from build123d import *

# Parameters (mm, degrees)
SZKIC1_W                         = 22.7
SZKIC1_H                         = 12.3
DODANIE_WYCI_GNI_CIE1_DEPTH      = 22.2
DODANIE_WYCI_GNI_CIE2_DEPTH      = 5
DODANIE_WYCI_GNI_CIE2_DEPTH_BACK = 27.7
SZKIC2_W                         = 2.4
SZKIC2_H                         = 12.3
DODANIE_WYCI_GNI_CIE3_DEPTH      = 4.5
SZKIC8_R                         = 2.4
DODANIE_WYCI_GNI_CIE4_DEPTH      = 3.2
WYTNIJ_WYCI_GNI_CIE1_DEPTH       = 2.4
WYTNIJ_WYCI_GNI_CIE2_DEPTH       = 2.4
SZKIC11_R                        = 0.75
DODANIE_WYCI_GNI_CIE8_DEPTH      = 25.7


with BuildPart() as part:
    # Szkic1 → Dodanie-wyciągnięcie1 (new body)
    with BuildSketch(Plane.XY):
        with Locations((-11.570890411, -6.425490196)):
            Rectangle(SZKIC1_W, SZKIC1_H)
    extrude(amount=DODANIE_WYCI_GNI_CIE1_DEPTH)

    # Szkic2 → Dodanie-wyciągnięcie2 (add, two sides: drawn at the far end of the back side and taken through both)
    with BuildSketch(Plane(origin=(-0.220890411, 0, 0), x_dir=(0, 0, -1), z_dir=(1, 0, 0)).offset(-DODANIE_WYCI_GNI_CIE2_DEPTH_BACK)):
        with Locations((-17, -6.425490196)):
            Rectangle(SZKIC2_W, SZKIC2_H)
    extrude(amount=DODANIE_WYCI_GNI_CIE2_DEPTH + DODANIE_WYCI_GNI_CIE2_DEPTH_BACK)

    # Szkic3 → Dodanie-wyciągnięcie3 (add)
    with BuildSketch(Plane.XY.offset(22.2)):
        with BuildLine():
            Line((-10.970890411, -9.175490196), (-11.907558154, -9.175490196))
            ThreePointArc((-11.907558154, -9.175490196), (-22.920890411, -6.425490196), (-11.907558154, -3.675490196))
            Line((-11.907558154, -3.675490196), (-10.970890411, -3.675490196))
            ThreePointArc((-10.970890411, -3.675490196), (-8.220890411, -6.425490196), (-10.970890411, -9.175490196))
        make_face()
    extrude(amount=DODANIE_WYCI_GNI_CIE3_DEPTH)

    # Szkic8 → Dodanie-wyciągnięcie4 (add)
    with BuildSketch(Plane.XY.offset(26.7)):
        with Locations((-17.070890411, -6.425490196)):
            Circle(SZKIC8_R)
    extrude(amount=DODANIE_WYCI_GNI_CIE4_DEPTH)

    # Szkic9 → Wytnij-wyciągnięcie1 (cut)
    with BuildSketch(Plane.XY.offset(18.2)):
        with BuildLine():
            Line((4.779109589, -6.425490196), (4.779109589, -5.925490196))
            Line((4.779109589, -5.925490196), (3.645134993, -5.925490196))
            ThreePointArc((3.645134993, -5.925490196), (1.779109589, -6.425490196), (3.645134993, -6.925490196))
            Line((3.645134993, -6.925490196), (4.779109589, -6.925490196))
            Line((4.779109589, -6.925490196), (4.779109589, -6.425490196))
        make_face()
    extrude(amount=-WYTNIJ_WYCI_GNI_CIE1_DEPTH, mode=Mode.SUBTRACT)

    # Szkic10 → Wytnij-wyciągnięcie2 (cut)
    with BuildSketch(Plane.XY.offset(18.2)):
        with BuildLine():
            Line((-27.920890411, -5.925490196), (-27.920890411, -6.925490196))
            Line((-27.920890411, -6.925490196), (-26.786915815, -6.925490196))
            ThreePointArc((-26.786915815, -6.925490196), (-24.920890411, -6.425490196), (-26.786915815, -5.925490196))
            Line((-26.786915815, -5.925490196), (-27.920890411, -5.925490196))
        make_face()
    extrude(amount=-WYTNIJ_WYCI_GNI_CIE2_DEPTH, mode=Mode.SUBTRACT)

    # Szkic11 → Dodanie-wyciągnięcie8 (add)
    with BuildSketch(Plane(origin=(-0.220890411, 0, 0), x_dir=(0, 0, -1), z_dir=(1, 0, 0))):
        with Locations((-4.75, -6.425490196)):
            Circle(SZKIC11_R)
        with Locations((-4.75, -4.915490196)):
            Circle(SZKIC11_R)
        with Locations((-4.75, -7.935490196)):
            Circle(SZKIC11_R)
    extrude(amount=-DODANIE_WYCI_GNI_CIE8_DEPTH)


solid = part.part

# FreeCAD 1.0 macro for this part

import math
import FreeCAD as App
import Part
import Sketcher
Q = App.Units.Quantity


def add_polygon(sketch, points):
    """Adds a closed chain of lines whose ends are joined by coincident constraints."""
    first, n = sketch.GeometryCount, len(points)
    for a, b in zip(points, points[1:] + points[:1]):
        sketch.addGeometry(Part.LineSegment(App.Vector(*a, 0), App.Vector(*b, 0)), False)
    for i in range(n):
        sketch.addConstraint(Sketcher.Constraint("Coincident", first + i, 2, first + (i + 1) % n, 1))

doc = App.newDocument("Part")
body = doc.addObject("PartDesign::Body", "Body")

# Sketch on XY plane
sketch1 = body.newObject("Sketcher::SketchObject", "Sketch")
sketch1.AttachmentSupport = (doc.getObject("XY_Plane"), [""])
sketch1.MapMode = "FlatFace"
add_polygon(sketch1, [(-23, 0), (-23, -13), (0, -13), (0, 0)])  # lines 0-3
sketch1.addConstraint(Sketcher.Constraint("Vertical", 0))
sketch1.addConstraint(Sketcher.Constraint("Horizontal", 1))
sketch1.addConstraint(Sketcher.Constraint("Vertical", 2))
sketch1.addConstraint(Sketcher.Constraint("Horizontal", 3))
sketch1.addConstraint(Sketcher.Constraint("DistanceX", 1, 1, 1, 2, Q("22.7 mm")))
sketch1.addConstraint(Sketcher.Constraint("DistanceY", 0, 2, 0, 1, Q("12.3 mm")))
sketch1.addConstraint(Sketcher.Constraint("DistanceX", 0, 2, -1, 1, Q("22.92089 mm")))
sketch1.addConstraint(Sketcher.Constraint("DistanceY", 0, 2, -1, 1, Q("12.57549 mm")))
pad1 = body.newObject("PartDesign::Pad", "Pad")
pad1.Profile = sketch1
pad1.Length = 22.2

# Sketch on YZ plane
sketch2 = body.newObject("Sketcher::SketchObject", "Sketch001")
sketch2.AttachmentSupport = (doc.getObject("YZ_Plane"), [""])
sketch2.MapMode = "FlatFace"
sketch2.AttachmentOffset = App.Placement(App.Vector(0, 0, -0.22089), App.Rotation())
add_polygon(sketch2, [(-0.3, 18.2), (-12.6, 18.2), (-12.6, 15.8), (-0.3, 15.8)])  # lines 0-3
sketch2.addConstraint(Sketcher.Constraint("Horizontal", 0))
sketch2.addConstraint(Sketcher.Constraint("Vertical", 1))
sketch2.addConstraint(Sketcher.Constraint("Horizontal", 2))
sketch2.addConstraint(Sketcher.Constraint("Vertical", 3))
sketch2.addConstraint(Sketcher.Constraint("DistanceX", 0, 2, 0, 1, Q("12.3 mm")))
sketch2.addConstraint(Sketcher.Constraint("DistanceY", 1, 2, 1, 1, Q("2.4 mm")))
sketch2.addConstraint(Sketcher.Constraint("DistanceY", -1, 1, 0, 2, Q("18.2 mm")))
sketch2.addConstraint(Sketcher.Constraint("DistanceX", 0, 2, -1, 1, Q("12.57549 mm")))
pad2 = body.newObject("PartDesign::Pad", "Pad001")
pad2.Profile = sketch2
pad2.Type = "TwoLengths"
pad2.Length = 5
pad2.Length2 = 27.7

# Sketch on XY plane
sketch3 = body.newObject("Sketcher::SketchObject", "Sketch002")
sketch3.AttachmentSupport = (doc.getObject("XY_Plane"), [""])
sketch3.MapMode = "FlatFace"
sketch3.AttachmentOffset = App.Placement(App.Vector(0, 0, 22.2), App.Rotation())
sketch3.addGeometry(Part.LineSegment(App.Vector(-11.9, -9.2, 0), App.Vector(-11, -9.2, 0)), False)
sketch3.addGeometry(Part.ArcOfCircle(Part.Circle(App.Vector(-11, -6.4, 0), App.Vector(0, 0, 1), 2.8), math.radians(-90), math.radians(90)), False)
sketch3.addGeometry(Part.LineSegment(App.Vector(-11, -3.7, 0), App.Vector(-11.9, -3.7, 0)), False)
sketch3.addGeometry(Part.ArcOfCircle(Part.Circle(App.Vector(-17.1, -6.4, 0), App.Vector(0, 0, 1), 5.8), math.radians(28), math.radians(332)), False)
sketch3.addConstraint(Sketcher.Constraint("Tangent", 0, 2, 1, 1))
sketch3.addConstraint(Sketcher.Constraint("Tangent", 1, 2, 2, 1))
sketch3.addConstraint(Sketcher.Constraint("Coincident", 2, 2, 3, 1))
sketch3.addConstraint(Sketcher.Constraint("Coincident", 3, 2, 0, 1))
sketch3.addConstraint(Sketcher.Constraint("Horizontal", 0))
sketch3.addConstraint(Sketcher.Constraint("Horizontal", 2))
sketch3.addConstraint(Sketcher.Constraint("Horizontal", 1, 3, 3, 3))
sketch3.addConstraint(Sketcher.Constraint("Radius", 1, Q("2.75 mm")))
sketch3.addConstraint(Sketcher.Constraint("Radius", 3, Q("5.85 mm")))
sketch3.addConstraint(Sketcher.Constraint("DistanceX", 3, 3, 1, 3, Q("6.1 mm")))
sketch3.addConstraint(Sketcher.Constraint("DistanceX", 1, 3, -1, 1, Q("10.97089 mm")))
sketch3.addConstraint(Sketcher.Constraint("DistanceY", 1, 3, -1, 1, Q("6.42549 mm")))
pad3 = body.newObject("PartDesign::Pad", "Pad002")
pad3.Profile = sketch3
pad3.Length = 4.5

# Sketch on XY plane
sketch4 = body.newObject("Sketcher::SketchObject", "Sketch003")
sketch4.AttachmentSupport = (doc.getObject("XY_Plane"), [""])
sketch4.MapMode = "FlatFace"
sketch4.AttachmentOffset = App.Placement(App.Vector(0, 0, 26.7), App.Rotation())
sketch4.addGeometry(Part.Circle(App.Vector(-17.1, -6.4, 0), App.Vector(0, 0, 1), 2.4), False)
sketch4.addConstraint(Sketcher.Constraint("Diameter", 0, Q("4.8 mm")))
sketch4.addConstraint(Sketcher.Constraint("DistanceX", 0, 3, -1, 1, Q("17.07089 mm")))
sketch4.addConstraint(Sketcher.Constraint("DistanceY", 0, 3, -1, 1, Q("6.42549 mm")))
pad4 = body.newObject("PartDesign::Pad", "Pad003")
pad4.Profile = sketch4
pad4.Length = 3.2

# Sketch on XY plane
sketch5 = body.newObject("Sketcher::SketchObject", "Sketch004")
sketch5.AttachmentSupport = (doc.getObject("XY_Plane"), [""])
sketch5.MapMode = "FlatFace"
sketch5.AttachmentOffset = App.Placement(App.Vector(0, 0, 18.2), App.Rotation())
sketch5.addGeometry(Part.LineSegment(App.Vector(4.8, -5.9, 0), App.Vector(3.6, -5.9, 0)), False)
sketch5.addGeometry(Part.ArcOfCircle(Part.Circle(App.Vector(2.8, -6.4, 0), App.Vector(0, 0, 1), 1), math.radians(30), math.radians(330)), False)
sketch5.addGeometry(Part.LineSegment(App.Vector(3.6, -6.9, 0), App.Vector(4.8, -6.9, 0)), False)
sketch5.addGeometry(Part.LineSegment(App.Vector(4.8, -6.9, 0), App.Vector(4.8, -5.9, 0)), False)
sketch5.addConstraint(Sketcher.Constraint("Coincident", 0, 2, 1, 1))
sketch5.addConstraint(Sketcher.Constraint("Coincident", 1, 2, 2, 1))
sketch5.addConstraint(Sketcher.Constraint("Coincident", 2, 2, 3, 1))
sketch5.addConstraint(Sketcher.Constraint("Coincident", 3, 2, 0, 1))
sketch5.addConstraint(Sketcher.Constraint("Horizontal", 0))
sketch5.addConstraint(Sketcher.Constraint("Horizontal", 2))
sketch5.addConstraint(Sketcher.Constraint("Vertical", 3))
sketch5.addConstraint(Sketcher.Constraint("Vertical", 0, 2, 1, 2))
sketch5.addConstraint(Sketcher.Constraint("Radius", 1, Q("1 mm")))
sketch5.addConstraint(Sketcher.Constraint("DistanceY", 3, 1, 3, 2, Q("1 mm")))
sketch5.addConstraint(Sketcher.Constraint("DistanceX", 1, 3, 2, 2, Q("2 mm")))
sketch5.addConstraint(Sketcher.Constraint("DistanceX", -1, 1, 1, 3, Q("2.77911 mm")))
sketch5.addConstraint(Sketcher.Constraint("DistanceY", 1, 3, -1, 1, Q("6.42549 mm")))
pocket1 = body.newObject("PartDesign::Pocket", "Pocket")
pocket1.Profile = sketch5
pocket1.Length = 2.4

# Sketch on XY plane
sketch6 = body.newObject("Sketcher::SketchObject", "Sketch005")
sketch6.AttachmentSupport = (doc.getObject("XY_Plane"), [""])
sketch6.MapMode = "FlatFace"
sketch6.AttachmentOffset = App.Placement(App.Vector(0, 0, 18.2), App.Rotation())
sketch6.addGeometry(Part.LineSegment(App.Vector(-27.9, -5.9, 0), App.Vector(-27.9, -6.9, 0)), False)
sketch6.addGeometry(Part.LineSegment(App.Vector(-27.9, -6.9, 0), App.Vector(-26.8, -6.9, 0)), False)
sketch6.addGeometry(Part.ArcOfCircle(Part.Circle(App.Vector(-25.9, -6.4, 0), App.Vector(0, 0, 1), 1), math.radians(-150), math.radians(150)), False)
sketch6.addGeometry(Part.LineSegment(App.Vector(-26.8, -5.9, 0), App.Vector(-27.9, -5.9, 0)), False)
sketch6.addConstraint(Sketcher.Constraint("Coincident", 0, 2, 1, 1))
sketch6.addConstraint(Sketcher.Constraint("Coincident", 1, 2, 2, 1))
sketch6.addConstraint(Sketcher.Constraint("Coincident", 2, 2, 3, 1))
sketch6.addConstraint(Sketcher.Constraint("Coincident", 3, 2, 0, 1))
sketch6.addConstraint(Sketcher.Constraint("Vertical", 0))
sketch6.addConstraint(Sketcher.Constraint("Horizontal", 1))
sketch6.addConstraint(Sketcher.Constraint("Horizontal", 3))
sketch6.addConstraint(Sketcher.Constraint("Vertical", 1, 2, 2, 2))
sketch6.addConstraint(Sketcher.Constraint("Radius", 2, Q("1 mm")))
sketch6.addConstraint(Sketcher.Constraint("DistanceY", 0, 2, 0, 1, Q("1 mm")))
sketch6.addConstraint(Sketcher.Constraint("DistanceX", 0, 2, 2, 3, Q("2 mm")))
sketch6.addConstraint(Sketcher.Constraint("DistanceX", 2, 3, -1, 1, Q("25.92089 mm")))
sketch6.addConstraint(Sketcher.Constraint("DistanceY", 2, 3, -1, 1, Q("6.42549 mm")))
pocket2 = body.newObject("PartDesign::Pocket", "Pocket001")
pocket2.Profile = sketch6
pocket2.Length = 2.4

# Sketch on YZ plane
sketch7 = body.newObject("Sketcher::SketchObject", "Sketch006")
sketch7.AttachmentSupport = (doc.getObject("YZ_Plane"), [""])
sketch7.MapMode = "FlatFace"
sketch7.AttachmentOffset = App.Placement(App.Vector(0, 0, -0.22089), App.Rotation())
sketch7.addGeometry(Part.Circle(App.Vector(-6.4, 4.8, 0), App.Vector(0, 0, 1), 0.8), False)
sketch7.addGeometry(Part.Circle(App.Vector(-4.9, 4.8, 0), App.Vector(0, 0, 1), 0.8), False)
sketch7.addGeometry(Part.Circle(App.Vector(-7.9, 4.8, 0), App.Vector(0, 0, 1), 0.8), False)
sketch7.addConstraint(Sketcher.Constraint("Equal", 0, 1))
sketch7.addConstraint(Sketcher.Constraint("Equal", 1, 2))
sketch7.addConstraint(Sketcher.Constraint("Horizontal", 0, 3, 1, 3))
sketch7.addConstraint(Sketcher.Constraint("Horizontal", 1, 3, 2, 3))
sketch7.addConstraint(Sketcher.Constraint("Diameter", 0, Q("1.5 mm")))
sketch7.addConstraint(Sketcher.Constraint("DistanceY", -1, 1, 0, 3, Q("4.75 mm")))
sketch7.addConstraint(Sketcher.Constraint("DistanceX", 0, 3, 1, 3, Q("1.51 mm")))
sketch7.addConstraint(Sketcher.Constraint("DistanceX", 2, 3, 0, 3, Q("1.51 mm")))
sketch7.addConstraint(Sketcher.Constraint("DistanceX", 0, 3, -1, 1, Q("6.42549 mm")))
pad5 = body.newObject("PartDesign::Pad", "Pad004")
pad5.Profile = sketch7
pad5.Length = 25.7
pad5.Reversed = True

doc.recompute()
